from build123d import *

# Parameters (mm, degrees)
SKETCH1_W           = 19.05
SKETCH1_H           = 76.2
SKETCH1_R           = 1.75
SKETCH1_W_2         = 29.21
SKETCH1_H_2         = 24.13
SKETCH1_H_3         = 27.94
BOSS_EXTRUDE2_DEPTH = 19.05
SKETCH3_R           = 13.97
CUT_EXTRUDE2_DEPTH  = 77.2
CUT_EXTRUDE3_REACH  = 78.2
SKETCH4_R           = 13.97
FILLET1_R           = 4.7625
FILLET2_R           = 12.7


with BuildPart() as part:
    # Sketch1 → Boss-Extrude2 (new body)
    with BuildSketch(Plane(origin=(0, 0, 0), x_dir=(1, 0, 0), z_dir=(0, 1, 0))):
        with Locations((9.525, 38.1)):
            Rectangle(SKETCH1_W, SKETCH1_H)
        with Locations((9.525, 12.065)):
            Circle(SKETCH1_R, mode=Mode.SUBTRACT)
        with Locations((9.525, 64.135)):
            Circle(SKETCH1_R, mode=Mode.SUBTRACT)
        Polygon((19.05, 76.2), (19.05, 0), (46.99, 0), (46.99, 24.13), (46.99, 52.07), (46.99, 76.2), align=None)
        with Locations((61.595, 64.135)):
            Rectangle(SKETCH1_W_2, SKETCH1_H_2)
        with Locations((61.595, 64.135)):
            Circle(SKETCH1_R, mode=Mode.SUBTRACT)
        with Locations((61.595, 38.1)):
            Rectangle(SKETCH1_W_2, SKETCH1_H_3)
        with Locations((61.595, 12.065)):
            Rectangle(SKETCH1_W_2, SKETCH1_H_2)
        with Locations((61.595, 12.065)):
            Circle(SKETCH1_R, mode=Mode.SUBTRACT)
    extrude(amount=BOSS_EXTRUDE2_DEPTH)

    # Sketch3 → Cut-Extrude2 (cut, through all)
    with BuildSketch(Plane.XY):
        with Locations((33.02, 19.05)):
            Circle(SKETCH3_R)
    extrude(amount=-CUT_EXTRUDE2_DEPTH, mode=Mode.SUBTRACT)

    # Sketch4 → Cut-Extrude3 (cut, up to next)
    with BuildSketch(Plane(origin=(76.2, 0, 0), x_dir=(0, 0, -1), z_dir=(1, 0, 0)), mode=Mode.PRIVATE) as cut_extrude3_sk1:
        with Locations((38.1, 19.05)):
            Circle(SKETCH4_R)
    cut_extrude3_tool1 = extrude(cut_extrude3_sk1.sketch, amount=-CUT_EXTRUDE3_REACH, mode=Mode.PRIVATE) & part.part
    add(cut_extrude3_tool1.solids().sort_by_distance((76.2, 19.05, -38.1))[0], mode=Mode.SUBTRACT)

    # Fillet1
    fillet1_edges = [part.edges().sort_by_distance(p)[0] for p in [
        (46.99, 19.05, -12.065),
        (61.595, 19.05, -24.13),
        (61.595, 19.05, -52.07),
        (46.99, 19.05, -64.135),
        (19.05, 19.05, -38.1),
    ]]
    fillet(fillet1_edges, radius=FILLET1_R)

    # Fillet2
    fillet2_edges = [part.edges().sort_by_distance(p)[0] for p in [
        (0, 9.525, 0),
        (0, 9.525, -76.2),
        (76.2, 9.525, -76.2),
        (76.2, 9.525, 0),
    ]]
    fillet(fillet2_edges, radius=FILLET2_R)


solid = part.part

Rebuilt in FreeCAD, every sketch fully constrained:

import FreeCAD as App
import Part
import Sketcher
Q = App.Units.Quantity


def edges_at(feature, points):
    """Names of the edges that pass closest to the given points."""
    edges = feature.Shape.Edges
    near = lambda p: min(range(len(edges)), key=lambda i: edges[i].distToShape(Part.Vertex(*p))[0])
    return sorted({f"Edge{near(p) + 1}" for p in points})


def add_polygon(sketch, points):
    """Adds a closed chain of lines whose ends are joined by coincident constraints."""
    first, n = sketch.GeometryCount, len(points)
    for a, b in zip(points, points[1:] + points[:1]):
        sketch.addGeometry(Part.LineSegment(App.Vector(*a, 0), App.Vector(*b, 0)), False)
    for i in range(n):
        sketch.addConstraint(Sketcher.Constraint("Coincident", first + i, 2, first + (i + 1) % n, 1))

doc = App.newDocument("Part")
body = doc.addObject("PartDesign::Body", "Body")

# Sketch on XZ plane
sketch1 = doc.addObject("Sketcher::SketchObject", "Sketch")
body.addObject(sketch1)
sketch1.AttachmentSupport = (doc.XZ_Plane, [""])
sketch1.MapMode = "FlatFace"
add_polygon(sketch1, [(0, -76.2), (0, 0), (76.2, 0), (76.2, -76.2)])  # lines 0-3
sketch1.addGeometry(Part.Circle(App.Vector(9.525, -12.065, 0), App.Vector(0, 0, 1), 1.75), False)  # 4
sketch1.addGeometry(Part.Circle(App.Vector(61.595, -12.065, 0), App.Vector(0, 0, 1), 1.75), False)  # 5
sketch1.addGeometry(Part.Circle(App.Vector(9.525, -64.135, 0), App.Vector(0, 0, 1), 1.75), False)  # 6
sketch1.addGeometry(Part.Circle(App.Vector(61.595, -64.135, 0), App.Vector(0, 0, 1), 1.75), False)  # 7
sketch1.addConstraint([
    Sketcher.Constraint("Vertical", 0),
    Sketcher.Constraint("Horizontal", 1),
    Sketcher.Constraint("Vertical", 2),
    Sketcher.Constraint("Horizontal", 3),
    Sketcher.Constraint("Coincident", 0, 2, -1, 1),
    Sketcher.Constraint("Equal", 4, 5),
    Sketcher.Constraint("Equal", 5, 6),
    Sketcher.Constraint("Equal", 6, 7),
    Sketcher.Constraint("Horizontal", 4, 3, 5, 3),
    Sketcher.Constraint("Horizontal", 6, 3, 7, 3),
    Sketcher.Constraint("Vertical", 4, 3, 6, 3),
    Sketcher.Constraint("Vertical", 5, 3, 7, 3),
    Sketcher.Constraint("Equal", 3, 0),
    Sketcher.Constraint("DistanceX", 1, 1, 1, 2, Q("3 in")),
    Sketcher.Constraint("Diameter", 4, Q("3.5 mm")),
    Sketcher.Constraint("DistanceX", 4, 3, 5, 3, Q("2.05 in")),
    Sketcher.Constraint("DistanceY", 6, 3, 4, 3, Q("2.05 in")),
    Sketcher.Constraint("DistanceX", -1, 1, 4, 3, Q("0.375 in")),
    Sketcher.Constraint("DistanceY", 4, 3, -1, 1, Q("0.475 in")),
])
pad1 = doc.addObject("PartDesign::Pad", "Pad")
body.addObject(pad1)
pad1.Profile = sketch1
pad1.Length = Q("0.75 in")
pad1.Reversed = True

# Sketch on XY plane
sketch2 = doc.addObject("Sketcher::SketchObject", "Sketch001")
body.addObject(sketch2)
sketch2.AttachmentSupport = (doc.XY_Plane, [""])
sketch2.MapMode = "FlatFace"
sketch2.addGeometry(Part.Circle(App.Vector(33.02, 19.05, 0), App.Vector(0, 0, 1), 13.97), False)
sketch2.addConstraint([
    Sketcher.Constraint("Diameter", 0, Q("1.1 in")),
    Sketcher.Constraint("DistanceX", -1, 1, 0, 3, Q("1.3 in")),
    Sketcher.Constraint("DistanceY", -1, 1, 0, 3, Q("0.75 in")),
])
pocket1 = doc.addObject("PartDesign::Pocket", "Pocket")
body.addObject(pocket1)
pocket1.Profile = sketch2
pocket1.Type = "ThroughAll"

# Sketch on YZ plane
sketch3 = doc.addObject("Sketcher::SketchObject", "Sketch002")
body.addObject(sketch3)
sketch3.AttachmentSupport = (doc.YZ_Plane, [""])
sketch3.MapMode = "FlatFace"
sketch3.AttachmentOffset = App.Placement(App.Vector(0, 0, 3 * 25.4), App.Rotation())
sketch3.addGeometry(Part.Circle(App.Vector(19.05, -38.1, 0), App.Vector(0, 0, 1), 13.97), False)
sketch3.addConstraint([
    Sketcher.Constraint("Diameter", 0, Q("1.1 in")),
    Sketcher.Constraint("DistanceY", 0, 3, -1, 1, Q("1.5 in")),
    Sketcher.Constraint("DistanceX", -1, 1, 0, 3, Q("0.75 in")),
])
pocket2 = doc.addObject("PartDesign::Pocket", "Pocket001")
body.addObject(pocket2)
pocket2.Profile = sketch3
pocket2.Length = Q("1.7 in")
doc.recompute()

fillet = doc.addObject("PartDesign::Fillet", "Fillet")
body.addObject(fillet)
fillet.Base = (pocket2, edges_at(pocket2, [
    (46.99, 19.05, -12.065),
    (61.595, 19.05, -24.13),
    (61.595, 19.05, -52.07),
    (46.99, 19.05, -64.135),
    (19.05, 19.05, -38.1),
]))
fillet.Radius = Q("0.1875 in")
doc.recompute()

fillet2 = doc.addObject("PartDesign::Fillet", "Fillet001")
body.addObject(fillet2)
fillet2.Base = (fillet, edges_at(fillet, [
    (0, 9.525, 0),
    (0, 9.525, -76.2),
    (76.2, 9.525, -76.2),
    (76.2, 9.525, 0),
]))
fillet2.Radius = Q("0.5 in")

doc.recompute()
